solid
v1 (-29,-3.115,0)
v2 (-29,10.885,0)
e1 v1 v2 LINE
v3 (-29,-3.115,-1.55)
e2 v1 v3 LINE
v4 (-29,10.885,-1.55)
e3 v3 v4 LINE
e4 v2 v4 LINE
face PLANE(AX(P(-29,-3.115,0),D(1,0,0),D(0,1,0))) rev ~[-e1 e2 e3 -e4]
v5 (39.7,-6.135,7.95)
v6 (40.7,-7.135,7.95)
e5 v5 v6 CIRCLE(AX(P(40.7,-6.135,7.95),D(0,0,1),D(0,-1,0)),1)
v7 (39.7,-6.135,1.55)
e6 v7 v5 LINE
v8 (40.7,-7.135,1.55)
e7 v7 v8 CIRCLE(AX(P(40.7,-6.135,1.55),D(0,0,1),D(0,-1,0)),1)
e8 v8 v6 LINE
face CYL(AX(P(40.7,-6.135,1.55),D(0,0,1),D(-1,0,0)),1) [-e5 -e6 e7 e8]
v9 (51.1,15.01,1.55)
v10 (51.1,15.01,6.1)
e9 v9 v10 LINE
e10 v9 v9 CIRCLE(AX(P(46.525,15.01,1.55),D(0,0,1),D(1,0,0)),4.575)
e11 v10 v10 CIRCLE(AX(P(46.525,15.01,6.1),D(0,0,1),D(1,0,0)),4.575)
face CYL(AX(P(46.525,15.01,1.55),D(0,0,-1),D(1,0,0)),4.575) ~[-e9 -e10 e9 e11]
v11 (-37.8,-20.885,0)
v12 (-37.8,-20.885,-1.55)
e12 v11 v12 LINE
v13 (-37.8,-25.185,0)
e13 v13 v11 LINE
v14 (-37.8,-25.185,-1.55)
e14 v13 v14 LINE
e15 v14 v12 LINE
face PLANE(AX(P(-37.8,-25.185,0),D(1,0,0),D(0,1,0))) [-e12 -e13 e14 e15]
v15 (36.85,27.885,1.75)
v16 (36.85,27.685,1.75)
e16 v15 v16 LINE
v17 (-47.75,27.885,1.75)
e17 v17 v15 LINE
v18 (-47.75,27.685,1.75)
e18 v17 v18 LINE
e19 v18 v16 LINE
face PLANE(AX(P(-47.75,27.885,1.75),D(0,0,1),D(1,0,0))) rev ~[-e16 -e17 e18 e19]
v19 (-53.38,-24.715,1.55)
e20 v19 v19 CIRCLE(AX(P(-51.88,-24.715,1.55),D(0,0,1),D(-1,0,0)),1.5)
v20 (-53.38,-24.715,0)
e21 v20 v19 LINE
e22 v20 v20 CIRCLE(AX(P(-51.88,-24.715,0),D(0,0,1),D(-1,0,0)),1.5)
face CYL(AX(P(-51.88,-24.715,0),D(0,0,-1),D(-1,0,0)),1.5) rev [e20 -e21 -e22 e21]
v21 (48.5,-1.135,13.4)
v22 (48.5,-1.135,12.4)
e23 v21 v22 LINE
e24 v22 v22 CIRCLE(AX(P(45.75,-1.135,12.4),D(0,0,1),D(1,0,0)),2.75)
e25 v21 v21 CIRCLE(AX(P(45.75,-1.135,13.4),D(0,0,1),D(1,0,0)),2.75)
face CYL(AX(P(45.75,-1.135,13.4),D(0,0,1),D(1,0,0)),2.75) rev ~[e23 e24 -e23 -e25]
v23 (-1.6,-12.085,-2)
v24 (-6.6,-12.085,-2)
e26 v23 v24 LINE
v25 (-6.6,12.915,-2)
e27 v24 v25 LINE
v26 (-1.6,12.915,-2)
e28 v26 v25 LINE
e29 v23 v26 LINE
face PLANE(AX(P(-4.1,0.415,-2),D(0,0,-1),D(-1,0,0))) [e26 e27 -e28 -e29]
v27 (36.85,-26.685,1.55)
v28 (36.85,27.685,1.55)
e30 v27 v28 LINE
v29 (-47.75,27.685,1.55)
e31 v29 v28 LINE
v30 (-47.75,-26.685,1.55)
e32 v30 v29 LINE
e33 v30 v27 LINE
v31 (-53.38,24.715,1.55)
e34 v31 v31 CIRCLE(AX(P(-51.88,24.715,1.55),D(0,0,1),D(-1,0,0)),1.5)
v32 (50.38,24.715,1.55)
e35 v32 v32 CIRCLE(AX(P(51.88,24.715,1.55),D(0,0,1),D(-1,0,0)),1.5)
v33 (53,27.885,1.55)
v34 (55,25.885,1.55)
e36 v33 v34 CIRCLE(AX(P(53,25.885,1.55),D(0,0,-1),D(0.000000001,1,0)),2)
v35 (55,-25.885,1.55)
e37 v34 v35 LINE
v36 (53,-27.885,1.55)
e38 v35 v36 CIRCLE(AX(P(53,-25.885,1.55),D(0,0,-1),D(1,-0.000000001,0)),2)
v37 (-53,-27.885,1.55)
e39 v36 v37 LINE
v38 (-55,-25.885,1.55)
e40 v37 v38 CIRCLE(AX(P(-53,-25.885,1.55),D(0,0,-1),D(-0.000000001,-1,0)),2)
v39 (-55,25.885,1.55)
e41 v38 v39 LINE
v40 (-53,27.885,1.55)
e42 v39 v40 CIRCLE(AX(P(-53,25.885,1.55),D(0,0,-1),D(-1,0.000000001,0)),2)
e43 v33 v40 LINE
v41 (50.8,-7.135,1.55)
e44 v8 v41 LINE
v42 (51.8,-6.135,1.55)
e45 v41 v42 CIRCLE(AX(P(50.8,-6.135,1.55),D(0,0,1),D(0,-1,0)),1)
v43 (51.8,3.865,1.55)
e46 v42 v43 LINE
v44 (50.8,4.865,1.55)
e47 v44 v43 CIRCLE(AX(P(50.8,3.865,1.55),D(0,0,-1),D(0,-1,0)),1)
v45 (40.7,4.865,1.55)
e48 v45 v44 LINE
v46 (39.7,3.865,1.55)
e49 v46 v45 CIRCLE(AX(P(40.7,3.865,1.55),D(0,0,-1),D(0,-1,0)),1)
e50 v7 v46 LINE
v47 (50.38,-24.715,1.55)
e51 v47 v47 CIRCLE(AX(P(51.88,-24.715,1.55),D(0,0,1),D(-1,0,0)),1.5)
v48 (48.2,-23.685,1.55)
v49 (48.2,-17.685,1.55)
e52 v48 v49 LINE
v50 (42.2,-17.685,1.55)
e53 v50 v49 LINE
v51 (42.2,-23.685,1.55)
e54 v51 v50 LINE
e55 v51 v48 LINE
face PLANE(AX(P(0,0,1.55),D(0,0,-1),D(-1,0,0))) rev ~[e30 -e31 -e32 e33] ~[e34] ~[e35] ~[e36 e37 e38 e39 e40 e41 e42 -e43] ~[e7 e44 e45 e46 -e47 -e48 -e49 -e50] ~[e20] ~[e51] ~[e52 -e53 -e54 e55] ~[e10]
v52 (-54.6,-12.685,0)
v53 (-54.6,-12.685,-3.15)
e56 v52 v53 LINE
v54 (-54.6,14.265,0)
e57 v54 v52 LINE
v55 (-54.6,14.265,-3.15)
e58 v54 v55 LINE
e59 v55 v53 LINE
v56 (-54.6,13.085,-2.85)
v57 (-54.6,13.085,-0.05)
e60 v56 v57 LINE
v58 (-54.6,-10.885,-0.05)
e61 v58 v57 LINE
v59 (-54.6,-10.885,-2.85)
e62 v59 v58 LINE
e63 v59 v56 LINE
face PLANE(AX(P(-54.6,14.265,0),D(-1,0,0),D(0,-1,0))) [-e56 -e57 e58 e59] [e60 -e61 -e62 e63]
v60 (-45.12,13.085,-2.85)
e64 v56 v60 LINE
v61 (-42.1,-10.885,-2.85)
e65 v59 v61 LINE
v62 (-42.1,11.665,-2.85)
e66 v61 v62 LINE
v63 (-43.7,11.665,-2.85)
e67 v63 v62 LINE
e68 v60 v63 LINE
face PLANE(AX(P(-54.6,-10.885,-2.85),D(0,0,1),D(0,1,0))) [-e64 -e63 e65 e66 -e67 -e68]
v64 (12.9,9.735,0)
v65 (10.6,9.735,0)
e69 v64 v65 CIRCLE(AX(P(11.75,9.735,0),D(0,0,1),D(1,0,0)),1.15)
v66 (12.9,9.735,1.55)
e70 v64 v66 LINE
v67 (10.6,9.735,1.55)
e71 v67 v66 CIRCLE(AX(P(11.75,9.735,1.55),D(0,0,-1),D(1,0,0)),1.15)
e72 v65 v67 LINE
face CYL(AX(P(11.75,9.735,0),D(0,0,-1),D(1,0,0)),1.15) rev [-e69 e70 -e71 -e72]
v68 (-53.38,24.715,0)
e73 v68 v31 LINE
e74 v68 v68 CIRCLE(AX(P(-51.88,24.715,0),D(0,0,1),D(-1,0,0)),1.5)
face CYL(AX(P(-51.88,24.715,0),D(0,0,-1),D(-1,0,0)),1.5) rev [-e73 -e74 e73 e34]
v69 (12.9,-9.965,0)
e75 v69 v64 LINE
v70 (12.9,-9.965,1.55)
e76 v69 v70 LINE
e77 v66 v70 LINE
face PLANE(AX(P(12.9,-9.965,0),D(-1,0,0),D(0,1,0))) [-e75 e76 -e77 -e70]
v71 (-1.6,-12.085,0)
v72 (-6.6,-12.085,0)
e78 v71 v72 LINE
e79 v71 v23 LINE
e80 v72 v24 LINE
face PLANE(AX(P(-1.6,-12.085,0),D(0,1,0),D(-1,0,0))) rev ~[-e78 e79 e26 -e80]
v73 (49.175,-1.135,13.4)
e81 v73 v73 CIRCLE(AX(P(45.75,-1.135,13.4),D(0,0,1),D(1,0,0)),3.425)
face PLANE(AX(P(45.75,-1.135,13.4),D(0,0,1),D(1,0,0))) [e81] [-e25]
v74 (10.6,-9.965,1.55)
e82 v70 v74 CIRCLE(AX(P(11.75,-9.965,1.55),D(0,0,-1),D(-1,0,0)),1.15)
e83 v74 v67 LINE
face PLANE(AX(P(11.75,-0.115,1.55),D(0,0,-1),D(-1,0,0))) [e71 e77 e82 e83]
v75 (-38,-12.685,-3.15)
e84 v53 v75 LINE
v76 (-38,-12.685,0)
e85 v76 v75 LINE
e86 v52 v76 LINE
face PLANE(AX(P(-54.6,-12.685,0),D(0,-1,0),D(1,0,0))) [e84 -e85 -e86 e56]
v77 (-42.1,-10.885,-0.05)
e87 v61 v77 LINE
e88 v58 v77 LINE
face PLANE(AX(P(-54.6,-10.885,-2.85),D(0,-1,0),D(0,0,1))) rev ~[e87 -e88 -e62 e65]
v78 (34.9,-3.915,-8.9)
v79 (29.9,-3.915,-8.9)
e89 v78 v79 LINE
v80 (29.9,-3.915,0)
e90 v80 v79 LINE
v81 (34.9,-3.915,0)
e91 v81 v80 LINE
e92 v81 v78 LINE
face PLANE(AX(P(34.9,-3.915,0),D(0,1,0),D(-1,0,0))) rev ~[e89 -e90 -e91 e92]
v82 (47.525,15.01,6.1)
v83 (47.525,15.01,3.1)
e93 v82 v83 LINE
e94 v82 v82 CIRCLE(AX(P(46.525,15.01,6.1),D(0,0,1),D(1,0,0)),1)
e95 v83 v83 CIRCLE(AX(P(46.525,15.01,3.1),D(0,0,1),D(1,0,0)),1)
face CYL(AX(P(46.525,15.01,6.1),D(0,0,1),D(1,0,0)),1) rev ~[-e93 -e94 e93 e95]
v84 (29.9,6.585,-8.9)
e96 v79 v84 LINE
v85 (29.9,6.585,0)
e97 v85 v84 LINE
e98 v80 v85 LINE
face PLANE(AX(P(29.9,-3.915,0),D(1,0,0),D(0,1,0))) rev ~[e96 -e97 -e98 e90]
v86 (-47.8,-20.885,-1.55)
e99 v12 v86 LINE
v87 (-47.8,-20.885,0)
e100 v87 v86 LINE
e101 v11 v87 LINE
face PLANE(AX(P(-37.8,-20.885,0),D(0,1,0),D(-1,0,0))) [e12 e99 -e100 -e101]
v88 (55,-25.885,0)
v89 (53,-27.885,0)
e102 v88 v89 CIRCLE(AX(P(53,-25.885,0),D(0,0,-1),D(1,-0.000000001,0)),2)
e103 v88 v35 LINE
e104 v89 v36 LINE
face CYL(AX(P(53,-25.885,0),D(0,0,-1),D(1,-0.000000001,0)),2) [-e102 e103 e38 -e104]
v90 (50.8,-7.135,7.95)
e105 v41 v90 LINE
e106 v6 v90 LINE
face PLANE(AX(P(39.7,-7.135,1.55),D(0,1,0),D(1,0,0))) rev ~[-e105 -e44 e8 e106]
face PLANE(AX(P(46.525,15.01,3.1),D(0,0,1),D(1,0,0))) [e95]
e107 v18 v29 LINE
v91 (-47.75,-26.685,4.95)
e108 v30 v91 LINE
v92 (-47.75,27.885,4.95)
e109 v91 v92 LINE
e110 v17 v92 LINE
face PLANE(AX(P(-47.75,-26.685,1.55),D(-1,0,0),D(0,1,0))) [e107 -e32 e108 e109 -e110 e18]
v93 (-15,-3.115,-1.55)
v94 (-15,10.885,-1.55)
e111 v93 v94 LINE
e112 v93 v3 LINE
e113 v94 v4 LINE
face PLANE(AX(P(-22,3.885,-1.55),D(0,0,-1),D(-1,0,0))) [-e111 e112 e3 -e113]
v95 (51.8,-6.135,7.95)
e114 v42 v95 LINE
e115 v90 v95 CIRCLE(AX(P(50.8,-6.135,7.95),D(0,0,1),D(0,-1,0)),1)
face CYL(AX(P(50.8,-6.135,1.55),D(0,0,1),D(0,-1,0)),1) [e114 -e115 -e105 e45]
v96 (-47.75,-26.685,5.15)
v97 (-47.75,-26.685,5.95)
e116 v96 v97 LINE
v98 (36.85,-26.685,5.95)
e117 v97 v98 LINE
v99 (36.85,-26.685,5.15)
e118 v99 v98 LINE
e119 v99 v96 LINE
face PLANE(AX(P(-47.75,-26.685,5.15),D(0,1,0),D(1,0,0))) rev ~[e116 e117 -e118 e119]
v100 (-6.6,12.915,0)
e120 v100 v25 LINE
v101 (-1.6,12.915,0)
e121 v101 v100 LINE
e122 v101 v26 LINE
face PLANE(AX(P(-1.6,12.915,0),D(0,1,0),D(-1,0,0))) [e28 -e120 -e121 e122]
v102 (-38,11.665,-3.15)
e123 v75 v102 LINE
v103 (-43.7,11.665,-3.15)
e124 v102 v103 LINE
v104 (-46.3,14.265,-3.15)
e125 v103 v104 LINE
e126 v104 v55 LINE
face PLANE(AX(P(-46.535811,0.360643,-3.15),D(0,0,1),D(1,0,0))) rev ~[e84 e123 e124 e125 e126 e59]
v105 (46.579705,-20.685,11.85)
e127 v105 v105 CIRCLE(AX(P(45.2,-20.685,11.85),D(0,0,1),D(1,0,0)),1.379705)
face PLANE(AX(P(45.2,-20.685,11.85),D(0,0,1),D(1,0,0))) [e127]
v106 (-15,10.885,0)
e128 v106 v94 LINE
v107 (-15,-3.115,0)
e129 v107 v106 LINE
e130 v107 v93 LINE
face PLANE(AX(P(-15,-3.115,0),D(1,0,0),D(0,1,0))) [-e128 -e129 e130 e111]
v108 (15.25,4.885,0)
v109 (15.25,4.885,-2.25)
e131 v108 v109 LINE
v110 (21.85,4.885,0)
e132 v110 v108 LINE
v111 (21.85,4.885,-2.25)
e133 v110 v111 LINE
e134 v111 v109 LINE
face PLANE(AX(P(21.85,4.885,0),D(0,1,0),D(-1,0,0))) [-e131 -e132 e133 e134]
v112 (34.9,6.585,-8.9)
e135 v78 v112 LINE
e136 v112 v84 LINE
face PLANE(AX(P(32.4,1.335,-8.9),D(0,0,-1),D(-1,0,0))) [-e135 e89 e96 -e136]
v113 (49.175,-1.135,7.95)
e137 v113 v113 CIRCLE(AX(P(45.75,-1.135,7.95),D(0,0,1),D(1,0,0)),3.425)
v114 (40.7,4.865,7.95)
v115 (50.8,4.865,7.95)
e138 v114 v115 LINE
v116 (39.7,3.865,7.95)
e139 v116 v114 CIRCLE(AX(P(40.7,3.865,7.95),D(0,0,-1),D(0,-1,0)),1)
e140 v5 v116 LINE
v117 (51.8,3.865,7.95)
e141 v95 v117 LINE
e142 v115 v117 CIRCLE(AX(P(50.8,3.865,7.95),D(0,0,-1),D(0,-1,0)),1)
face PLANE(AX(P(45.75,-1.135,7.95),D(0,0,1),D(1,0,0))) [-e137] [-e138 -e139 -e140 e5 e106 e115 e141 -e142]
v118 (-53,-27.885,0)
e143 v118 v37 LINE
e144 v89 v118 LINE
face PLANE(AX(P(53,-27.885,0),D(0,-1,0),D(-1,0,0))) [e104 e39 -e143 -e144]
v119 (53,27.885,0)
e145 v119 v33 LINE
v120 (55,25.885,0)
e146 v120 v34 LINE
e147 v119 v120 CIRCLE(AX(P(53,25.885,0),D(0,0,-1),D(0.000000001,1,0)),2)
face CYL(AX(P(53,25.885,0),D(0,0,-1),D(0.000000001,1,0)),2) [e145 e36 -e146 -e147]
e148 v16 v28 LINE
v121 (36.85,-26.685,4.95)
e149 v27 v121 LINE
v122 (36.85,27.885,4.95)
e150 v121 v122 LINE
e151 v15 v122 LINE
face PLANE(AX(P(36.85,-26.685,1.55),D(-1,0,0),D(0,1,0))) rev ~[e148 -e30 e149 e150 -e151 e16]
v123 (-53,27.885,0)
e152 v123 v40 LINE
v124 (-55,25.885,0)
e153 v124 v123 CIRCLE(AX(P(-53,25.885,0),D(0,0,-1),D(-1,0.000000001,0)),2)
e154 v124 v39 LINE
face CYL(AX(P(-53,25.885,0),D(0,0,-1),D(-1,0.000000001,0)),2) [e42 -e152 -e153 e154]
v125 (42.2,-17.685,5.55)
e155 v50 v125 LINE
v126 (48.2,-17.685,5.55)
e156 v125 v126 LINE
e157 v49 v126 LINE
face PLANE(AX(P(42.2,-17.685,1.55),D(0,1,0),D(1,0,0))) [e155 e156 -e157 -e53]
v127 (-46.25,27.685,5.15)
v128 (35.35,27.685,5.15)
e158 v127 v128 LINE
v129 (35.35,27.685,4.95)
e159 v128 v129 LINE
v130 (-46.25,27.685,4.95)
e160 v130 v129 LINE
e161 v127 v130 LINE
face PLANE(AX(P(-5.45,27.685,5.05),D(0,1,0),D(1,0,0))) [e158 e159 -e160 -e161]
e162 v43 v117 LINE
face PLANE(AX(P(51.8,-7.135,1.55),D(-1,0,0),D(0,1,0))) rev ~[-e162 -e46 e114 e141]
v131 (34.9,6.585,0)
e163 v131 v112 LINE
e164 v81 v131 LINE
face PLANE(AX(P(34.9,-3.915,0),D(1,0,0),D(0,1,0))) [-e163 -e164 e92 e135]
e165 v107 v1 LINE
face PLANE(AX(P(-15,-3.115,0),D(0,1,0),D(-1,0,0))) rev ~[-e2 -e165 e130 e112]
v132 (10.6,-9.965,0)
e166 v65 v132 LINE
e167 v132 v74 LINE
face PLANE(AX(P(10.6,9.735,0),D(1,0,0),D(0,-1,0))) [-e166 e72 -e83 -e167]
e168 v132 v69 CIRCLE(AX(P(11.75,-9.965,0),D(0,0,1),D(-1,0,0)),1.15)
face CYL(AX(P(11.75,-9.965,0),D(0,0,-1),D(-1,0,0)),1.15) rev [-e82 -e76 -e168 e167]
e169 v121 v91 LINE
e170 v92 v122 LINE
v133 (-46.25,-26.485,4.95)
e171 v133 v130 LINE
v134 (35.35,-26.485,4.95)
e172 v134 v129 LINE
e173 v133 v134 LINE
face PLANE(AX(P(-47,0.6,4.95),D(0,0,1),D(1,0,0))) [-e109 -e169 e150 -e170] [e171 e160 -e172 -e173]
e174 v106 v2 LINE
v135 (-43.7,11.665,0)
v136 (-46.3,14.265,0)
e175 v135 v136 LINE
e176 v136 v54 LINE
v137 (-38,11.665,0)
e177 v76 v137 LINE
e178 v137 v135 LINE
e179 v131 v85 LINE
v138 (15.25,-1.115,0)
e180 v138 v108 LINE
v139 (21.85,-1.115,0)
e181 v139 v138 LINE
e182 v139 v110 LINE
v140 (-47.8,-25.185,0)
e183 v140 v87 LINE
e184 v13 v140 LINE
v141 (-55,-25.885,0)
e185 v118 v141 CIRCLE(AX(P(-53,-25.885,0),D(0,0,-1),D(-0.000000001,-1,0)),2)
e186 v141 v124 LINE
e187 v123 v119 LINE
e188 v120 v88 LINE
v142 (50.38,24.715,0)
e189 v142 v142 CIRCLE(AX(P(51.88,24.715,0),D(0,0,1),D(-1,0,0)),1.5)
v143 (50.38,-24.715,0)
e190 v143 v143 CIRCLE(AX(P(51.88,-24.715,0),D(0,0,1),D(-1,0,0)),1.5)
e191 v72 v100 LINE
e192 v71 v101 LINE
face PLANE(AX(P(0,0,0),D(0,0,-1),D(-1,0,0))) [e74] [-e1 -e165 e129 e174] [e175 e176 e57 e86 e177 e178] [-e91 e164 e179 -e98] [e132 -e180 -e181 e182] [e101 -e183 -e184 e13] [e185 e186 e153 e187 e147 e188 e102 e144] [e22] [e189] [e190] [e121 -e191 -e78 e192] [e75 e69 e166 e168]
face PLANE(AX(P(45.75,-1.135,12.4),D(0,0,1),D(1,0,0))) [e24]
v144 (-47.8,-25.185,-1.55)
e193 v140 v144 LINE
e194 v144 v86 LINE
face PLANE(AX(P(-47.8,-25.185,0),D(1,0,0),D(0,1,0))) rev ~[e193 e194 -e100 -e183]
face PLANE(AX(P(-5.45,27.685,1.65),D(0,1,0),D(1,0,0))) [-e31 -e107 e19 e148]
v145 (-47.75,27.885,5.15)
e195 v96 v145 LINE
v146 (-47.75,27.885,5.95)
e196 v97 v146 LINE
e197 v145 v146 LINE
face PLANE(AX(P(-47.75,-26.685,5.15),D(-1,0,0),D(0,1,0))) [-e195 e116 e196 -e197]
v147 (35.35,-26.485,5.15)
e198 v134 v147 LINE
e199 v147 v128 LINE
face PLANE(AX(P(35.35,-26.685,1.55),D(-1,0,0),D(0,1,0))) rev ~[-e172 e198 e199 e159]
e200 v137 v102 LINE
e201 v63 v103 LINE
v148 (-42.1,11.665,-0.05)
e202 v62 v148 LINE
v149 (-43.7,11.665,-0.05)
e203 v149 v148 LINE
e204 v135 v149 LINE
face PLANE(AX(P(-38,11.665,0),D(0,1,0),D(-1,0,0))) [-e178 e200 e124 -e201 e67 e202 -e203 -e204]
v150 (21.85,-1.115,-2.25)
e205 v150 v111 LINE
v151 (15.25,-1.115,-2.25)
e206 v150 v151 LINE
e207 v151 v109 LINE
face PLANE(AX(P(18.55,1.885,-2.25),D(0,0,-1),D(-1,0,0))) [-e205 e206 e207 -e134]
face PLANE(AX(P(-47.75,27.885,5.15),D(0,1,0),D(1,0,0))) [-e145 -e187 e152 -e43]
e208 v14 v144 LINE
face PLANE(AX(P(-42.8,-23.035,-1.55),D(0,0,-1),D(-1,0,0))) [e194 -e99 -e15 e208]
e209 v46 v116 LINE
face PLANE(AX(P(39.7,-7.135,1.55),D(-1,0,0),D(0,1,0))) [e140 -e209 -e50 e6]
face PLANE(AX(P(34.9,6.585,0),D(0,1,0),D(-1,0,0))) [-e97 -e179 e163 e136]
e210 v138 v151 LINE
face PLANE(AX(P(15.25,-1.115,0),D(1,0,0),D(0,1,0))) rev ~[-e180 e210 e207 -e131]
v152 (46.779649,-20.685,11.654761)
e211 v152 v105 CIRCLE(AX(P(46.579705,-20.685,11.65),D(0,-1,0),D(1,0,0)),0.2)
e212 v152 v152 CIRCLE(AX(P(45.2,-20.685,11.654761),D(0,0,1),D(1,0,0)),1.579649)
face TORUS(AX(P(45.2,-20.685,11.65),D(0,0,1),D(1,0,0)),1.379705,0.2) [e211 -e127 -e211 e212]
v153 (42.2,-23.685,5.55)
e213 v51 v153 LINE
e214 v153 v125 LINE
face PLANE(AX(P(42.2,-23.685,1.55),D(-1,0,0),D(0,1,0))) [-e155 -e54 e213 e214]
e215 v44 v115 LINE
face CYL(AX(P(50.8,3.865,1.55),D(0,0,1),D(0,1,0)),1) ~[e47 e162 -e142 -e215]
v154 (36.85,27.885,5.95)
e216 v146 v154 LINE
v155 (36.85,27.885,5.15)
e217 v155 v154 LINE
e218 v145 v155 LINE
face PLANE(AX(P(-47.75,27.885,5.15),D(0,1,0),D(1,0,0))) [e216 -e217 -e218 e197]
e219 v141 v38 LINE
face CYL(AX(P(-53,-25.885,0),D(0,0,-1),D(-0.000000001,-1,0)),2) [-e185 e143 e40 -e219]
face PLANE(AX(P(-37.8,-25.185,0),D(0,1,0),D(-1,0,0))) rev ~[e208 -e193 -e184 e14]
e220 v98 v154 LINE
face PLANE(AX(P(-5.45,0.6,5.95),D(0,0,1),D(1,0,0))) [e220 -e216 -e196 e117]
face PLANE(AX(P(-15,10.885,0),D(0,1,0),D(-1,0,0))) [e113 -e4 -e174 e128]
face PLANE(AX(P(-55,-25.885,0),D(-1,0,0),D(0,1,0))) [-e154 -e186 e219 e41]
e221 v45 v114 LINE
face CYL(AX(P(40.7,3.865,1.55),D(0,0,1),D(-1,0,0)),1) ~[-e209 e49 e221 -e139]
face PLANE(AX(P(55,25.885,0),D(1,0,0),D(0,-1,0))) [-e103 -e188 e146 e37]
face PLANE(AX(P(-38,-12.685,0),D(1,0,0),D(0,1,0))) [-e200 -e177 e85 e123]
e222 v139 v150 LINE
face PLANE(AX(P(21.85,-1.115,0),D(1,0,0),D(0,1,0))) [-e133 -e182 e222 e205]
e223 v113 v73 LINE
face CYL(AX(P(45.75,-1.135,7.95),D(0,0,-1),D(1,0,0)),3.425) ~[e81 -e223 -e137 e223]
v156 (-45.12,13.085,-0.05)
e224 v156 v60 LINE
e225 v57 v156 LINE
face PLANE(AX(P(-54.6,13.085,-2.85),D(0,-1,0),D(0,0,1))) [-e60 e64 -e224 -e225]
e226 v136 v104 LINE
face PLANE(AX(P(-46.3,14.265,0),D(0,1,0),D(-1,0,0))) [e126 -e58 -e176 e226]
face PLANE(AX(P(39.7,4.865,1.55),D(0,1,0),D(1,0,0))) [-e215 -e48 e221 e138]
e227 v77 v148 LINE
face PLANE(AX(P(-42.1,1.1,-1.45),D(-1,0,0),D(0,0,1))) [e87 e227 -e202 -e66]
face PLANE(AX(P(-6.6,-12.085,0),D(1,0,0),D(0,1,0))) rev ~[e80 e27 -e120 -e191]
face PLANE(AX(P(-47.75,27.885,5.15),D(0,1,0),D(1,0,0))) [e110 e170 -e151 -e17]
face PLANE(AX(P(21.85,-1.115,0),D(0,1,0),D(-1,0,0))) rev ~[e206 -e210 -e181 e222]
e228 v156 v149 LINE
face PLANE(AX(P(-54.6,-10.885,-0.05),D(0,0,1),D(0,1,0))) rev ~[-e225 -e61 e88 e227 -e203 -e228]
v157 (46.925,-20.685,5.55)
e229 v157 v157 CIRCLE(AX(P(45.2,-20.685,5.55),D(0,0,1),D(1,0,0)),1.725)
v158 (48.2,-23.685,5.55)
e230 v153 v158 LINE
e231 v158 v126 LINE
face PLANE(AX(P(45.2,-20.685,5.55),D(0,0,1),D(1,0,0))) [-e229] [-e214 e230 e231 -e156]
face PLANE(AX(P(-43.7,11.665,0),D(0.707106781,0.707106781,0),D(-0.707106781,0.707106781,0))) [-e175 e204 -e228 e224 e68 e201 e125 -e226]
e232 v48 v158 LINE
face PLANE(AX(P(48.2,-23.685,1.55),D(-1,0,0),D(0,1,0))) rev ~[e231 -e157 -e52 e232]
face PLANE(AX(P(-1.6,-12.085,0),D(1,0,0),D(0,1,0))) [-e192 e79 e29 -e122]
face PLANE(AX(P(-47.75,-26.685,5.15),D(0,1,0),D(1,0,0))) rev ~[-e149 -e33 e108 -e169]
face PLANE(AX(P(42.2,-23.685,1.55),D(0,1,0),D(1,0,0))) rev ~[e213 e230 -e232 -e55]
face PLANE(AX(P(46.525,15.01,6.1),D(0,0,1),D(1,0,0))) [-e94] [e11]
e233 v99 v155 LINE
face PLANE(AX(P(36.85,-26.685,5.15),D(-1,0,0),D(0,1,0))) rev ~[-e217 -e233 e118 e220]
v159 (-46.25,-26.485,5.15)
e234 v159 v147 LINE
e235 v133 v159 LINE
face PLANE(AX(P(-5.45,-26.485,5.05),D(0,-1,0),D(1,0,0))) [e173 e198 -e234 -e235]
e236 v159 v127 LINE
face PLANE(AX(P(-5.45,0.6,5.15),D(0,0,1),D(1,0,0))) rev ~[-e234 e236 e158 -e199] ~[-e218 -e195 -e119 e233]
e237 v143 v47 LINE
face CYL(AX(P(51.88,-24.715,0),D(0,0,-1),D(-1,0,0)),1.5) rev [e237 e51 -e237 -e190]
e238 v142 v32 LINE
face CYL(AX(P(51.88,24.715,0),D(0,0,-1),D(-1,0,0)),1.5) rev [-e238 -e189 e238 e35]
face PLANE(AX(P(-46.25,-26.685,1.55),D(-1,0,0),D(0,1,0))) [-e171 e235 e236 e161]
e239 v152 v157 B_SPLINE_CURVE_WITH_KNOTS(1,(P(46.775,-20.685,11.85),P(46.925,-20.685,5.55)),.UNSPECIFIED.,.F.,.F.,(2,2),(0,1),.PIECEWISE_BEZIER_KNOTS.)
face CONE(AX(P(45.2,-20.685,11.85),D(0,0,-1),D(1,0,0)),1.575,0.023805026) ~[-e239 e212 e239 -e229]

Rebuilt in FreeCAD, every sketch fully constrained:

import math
import FreeCAD as App
import Part
import Sketcher

V = App.Vector
Q = App.Units.Quantity


def edges_at(feature, points):
    """Names of the edges that pass closest to the given points."""
    edges = feature.Shape.Edges
    near = lambda p: min(range(len(edges)), key=lambda i: edges[i].distToShape(Part.Vertex(*p))[0])
    return sorted({f"Edge{near(p) + 1}" for p in points})


def add_polygon(sketch, points):
    """Adds a closed chain of lines whose ends are joined by coincident constraints."""
    first, n = sketch.GeometryCount, len(points)
    for a, b in zip(points, points[1:] + points[:1]):
        sketch.addGeometry(Part.LineSegment(App.Vector(*a, 0), App.Vector(*b, 0)), False)
    for i in range(n):
        sketch.addConstraint(Sketcher.Constraint("Coincident", first + i, 2, first + (i + 1) % n, 1))

doc = App.newDocument("Part")
body = doc.addObject("PartDesign::Body", "Body")

sketch1 = doc.addObject("Sketcher::SketchObject", "Sketch")
body.addObject(sketch1)
sketch1.AttachmentSupport = (doc.XY_Plane, [""])
sketch1.MapMode = "FlatFace"
sketch1.addGeometry(Part.LineSegment(V(53, 27.9, 0), V(-53, 27.9, 0)), False)
sketch1.addGeometry(Part.ArcOfCircle(Part.Circle(V(-53, 25.9, 0), V(0, 0, 1), 2), math.radians(90), math.radians(180)), False)
sketch1.addGeometry(Part.LineSegment(V(-55, 25.9, 0), V(-55, -25.9, 0)), False)
sketch1.addGeometry(Part.ArcOfCircle(Part.Circle(V(-53, -25.9, 0), V(0, 0, 1), 2), math.radians(-180), math.radians(-90)), False)
sketch1.addGeometry(Part.LineSegment(V(-53, -27.9, 0), V(53, -27.9, 0)), False)
sketch1.addGeometry(Part.ArcOfCircle(Part.Circle(V(53, -25.9, 0), V(0, 0, 1), 2), math.radians(-90), math.radians(0)), False)
sketch1.addGeometry(Part.LineSegment(V(55, -25.9, 0), V(55, 25.9, 0)), False)
sketch1.addGeometry(Part.ArcOfCircle(Part.Circle(V(53, 25.9, 0), V(0, 0, 1), 2), math.radians(0), math.radians(90)), False)
sketch1.addGeometry(Part.Circle(V(51.9, -24.7, 0), V(0, 0, 1), 1.5), False)
sketch1.addGeometry(Part.Circle(V(-51.9, -24.7, 0), V(0, 0, 1), 1.5), False)
sketch1.addGeometry(Part.Circle(V(51.9, 24.7, 0), V(0, 0, 1), 1.5), False)
sketch1.addGeometry(Part.Circle(V(-51.9, 24.7, 0), V(0, 0, 1), 1.5), False)
sketch1.addConstraint(Sketcher.Constraint("Tangent", 0, 2, 1, 1))
sketch1.addConstraint(Sketcher.Constraint("Tangent", 1, 2, 2, 1))
sketch1.addConstraint(Sketcher.Constraint("Tangent", 2, 2, 3, 1))
sketch1.addConstraint(Sketcher.Constraint("Tangent", 3, 2, 4, 1))
sketch1.addConstraint(Sketcher.Constraint("Tangent", 4, 2, 5, 1))
sketch1.addConstraint(Sketcher.Constraint("Tangent", 5, 2, 6, 1))
sketch1.addConstraint(Sketcher.Constraint("Tangent", 6, 2, 7, 1))
sketch1.addConstraint(Sketcher.Constraint("Tangent", 7, 2, 0, 1))
sketch1.addConstraint(Sketcher.Constraint("Horizontal", 0))
sketch1.addConstraint(Sketcher.Constraint("Vertical", 2))
sketch1.addConstraint(Sketcher.Constraint("Horizontal", 4))
sketch1.addConstraint(Sketcher.Constraint("Vertical", 6))
sketch1.addConstraint(Sketcher.Constraint("Equal", 1, 3))
sketch1.addConstraint(Sketcher.Constraint("Equal", 3, 5))
sketch1.addConstraint(Sketcher.Constraint("Equal", 5, 7))
sketch1.addConstraint(Sketcher.Constraint("Equal", 8, 9))
sketch1.addConstraint(Sketcher.Constraint("Equal", 9, 10))
sketch1.addConstraint(Sketcher.Constraint("Equal", 10, 11))
sketch1.addConstraint(Sketcher.Constraint("Symmetric", 1, 3, 5, 3, -1, 1))
sketch1.addConstraint(Sketcher.Constraint("Symmetric", 9, 3, 10, 3, -1, 1))
sketch1.addConstraint(Sketcher.Constraint("Symmetric", 8, 3, 11, 3, -1, 1))
sketch1.addConstraint(Sketcher.Constraint("Symmetric", 8, 3, 9, 3, -2))
sketch1.addConstraint(Sketcher.Constraint("Diameter", 8, Q("3 mm")))
sketch1.addConstraint(Sketcher.Constraint("Radius", 1, Q("2 mm")))
sketch1.addConstraint(Sketcher.Constraint("DistanceX", 0, 2, 0, 1, Q("106 mm")))
sketch1.addConstraint(Sketcher.Constraint("DistanceY", 2, 2, 2, 1, Q("51.77 mm")))
sketch1.addConstraint(Sketcher.Constraint("DistanceY", 8, 3, 7, 3, Q("50.6 mm")))
sketch1.addConstraint(Sketcher.Constraint("DistanceX", -1, 1, 8, 3, Q("51.88 mm")))
pad1 = doc.addObject("PartDesign::Pad", "Pad")
body.addObject(pad1)
pad1.Profile = sketch1
pad1.Length = 1.55

sketch2 = doc.addObject("Sketcher::SketchObject", "Sketch001")
body.addObject(sketch2)
sketch2.AttachmentSupport = (doc.XY_Plane, [""])
sketch2.MapMode = "FlatFace"
add_polygon(sketch2, [(-15, 11), (-15, -3), (-29, -3), (-29, 11)])
sketch2.addConstraint(Sketcher.Constraint("Vertical", 0))
sketch2.addConstraint(Sketcher.Constraint("Horizontal", 1))
sketch2.addConstraint(Sketcher.Constraint("Vertical", 2))
sketch2.addConstraint(Sketcher.Constraint("Horizontal", 3))
sketch2.addConstraint(Sketcher.Constraint("Equal", 3, 0))
sketch2.addConstraint(Sketcher.Constraint("DistanceX", 1, 2, 1, 1, Q("14 mm")))
sketch2.addConstraint(Sketcher.Constraint("DistanceX", 0, 2, -1, 1, Q("15 mm")))
sketch2.addConstraint(Sketcher.Constraint("DistanceY", 0, 2, -1, 1, Q("3.115 mm")))
pad2 = doc.addObject("PartDesign::Pad", "Pad001")
body.addObject(pad2)
pad2.Profile = sketch2
pad2.Length = 1.55
pad2.Reversed = True

sketch3 = doc.addObject("Sketcher::SketchObject", "Sketch002")
body.addObject(sketch3)
sketch3.AttachmentSupport = (doc.XY_Plane, [""])
sketch3.MapMode = "FlatFace"
sketch3.addGeometry(Part.LineSegment(V(10.6, -10, 0), V(10.6, 9.7, 0)), False)
sketch3.addGeometry(Part.ArcOfCircle(Part.Circle(V(11.8, 9.7, 0), V(0, 0, 1), 1.1), math.radians(0), math.radians(180)), False)
sketch3.addGeometry(Part.LineSegment(V(12.9, 9.7, 0), V(12.9, -10, 0)), False)
sketch3.addGeometry(Part.ArcOfCircle(Part.Circle(V(11.8, -10, 0), V(0, 0, 1), 1.1), math.radians(180), math.radians(360)), False)
sketch3.addConstraint(Sketcher.Constraint("Tangent", 0, 2, 1, 2))
sketch3.addConstraint(Sketcher.Constraint("Tangent", 1, 1, 2, 1))
sketch3.addConstraint(Sketcher.Constraint("Tangent", 2, 2, 3, 2))
sketch3.addConstraint(Sketcher.Constraint("Tangent", 3, 1, 0, 1))
sketch3.addConstraint(Sketcher.Constraint("Vertical", 0))
sketch3.addConstraint(Sketcher.Constraint("Vertical", 2))
sketch3.addConstraint(Sketcher.Constraint("Radius", 1, Q("1.15 mm")))
sketch3.addConstraint(Sketcher.Constraint("DistanceY", 0, 1, 0, 2, Q("19.7 mm")))
sketch3.addConstraint(Sketcher.Constraint("DistanceX", -1, 1, 0, 2, Q("10.6 mm")))
sketch3.addConstraint(Sketcher.Constraint("DistanceY", -1, 1, 1, 3, Q("9.735 mm")))
pocket1 = doc.addObject("PartDesign::Pocket", "Pocket")
body.addObject(pocket1)
pocket1.Profile = sketch3
pocket1.Type = "UpToFirst"
pocket1.Reversed = True

sketch4 = doc.addObject("Sketcher::SketchObject", "Sketch003")
body.addObject(sketch4)
sketch4.AttachmentSupport = (doc.XY_Plane, [""])
sketch4.MapMode = "FlatFace"
add_polygon(sketch4, [(-46.3, 14.3), (-43.7, 11.7), (-38, 11.7), (-38, -12.7), (-54.6, -12.7), (-54.6, 14.3)])
sketch4.addConstraint(Sketcher.Constraint("Horizontal", 1))
sketch4.addConstraint(Sketcher.Constraint("Vertical", 2))
sketch4.addConstraint(Sketcher.Constraint("Horizontal", 3))
sketch4.addConstraint(Sketcher.Constraint("Vertical", 4))
sketch4.addConstraint(Sketcher.Constraint("Horizontal", 5))
sketch4.addConstraint(Sketcher.Constraint("Angle", 0, Q("-45 deg")))
sketch4.addConstraint(Sketcher.Constraint("DistanceX", 1, 1, 1, 2, Q("5.7 mm")))
sketch4.addConstraint(Sketcher.Constraint("DistanceX", 3, 2, 3, 1, Q("16.6 mm")))
sketch4.addConstraint(Sketcher.Constraint("DistanceX", 5, 1, 5, 2, Q("8.3 mm")))
sketch4.addConstraint(Sketcher.Constraint("DistanceX", 1, 2, -1, 1, Q("38 mm")))
sketch4.addConstraint(Sketcher.Constraint("DistanceY", 2, 2, 2, 1, Q("24.35 mm")))
sketch4.addConstraint(Sketcher.Constraint("DistanceY", -1, 1, 0, 2, Q("11.665 mm")))
pad3 = doc.addObject("PartDesign::Pad", "Pad002")
body.addObject(pad3)
pad3.Profile = sketch4
pad3.Length = 3.15
pad3.Reversed = True

sketch5 = doc.addObject("Sketcher::SketchObject", "Sketch004")
body.addObject(sketch5)
sketch5.AttachmentSupport = (doc.XY_Plane, [""])
sketch5.MapMode = "FlatFace"
add_polygon(sketch5, [(-2, 13), (-2, -12), (-7, -12), (-7, 13)])
sketch5.addConstraint(Sketcher.Constraint("Vertical", 0))
sketch5.addConstraint(Sketcher.Constraint("Horizontal", 1))
sketch5.addConstraint(Sketcher.Constraint("Vertical", 2))
sketch5.addConstraint(Sketcher.Constraint("Horizontal", 3))
sketch5.addConstraint(Sketcher.Constraint("DistanceX", 1, 2, 1, 1, Q("5 mm")))
sketch5.addConstraint(Sketcher.Constraint("DistanceY", 0, 2, 0, 1, Q("25 mm")))
sketch5.addConstraint(Sketcher.Constraint("DistanceX", 0, 2, -1, 1, Q("1.6 mm")))
sketch5.addConstraint(Sketcher.Constraint("DistanceY", 0, 2, -1, 1, Q("12.085 mm")))
pad4 = doc.addObject("PartDesign::Pad", "Pad003")
body.addObject(pad4)
pad4.Profile = sketch5
pad4.Length = 2
pad4.Reversed = True

sketch6 = doc.addObject("Sketcher::SketchObject", "Sketch005")
body.addObject(sketch6)
sketch6.AttachmentSupport = (doc.XY_Plane, [""])
sketch6.MapMode = "FlatFace"
add_polygon(sketch6, [(35, 7), (35, -4), (30, -4), (30, 7)])
sketch6.addConstraint(Sketcher.Constraint("Vertical", 0))
sketch6.addConstraint(Sketcher.Constraint("Horizontal", 1))
sketch6.addConstraint(Sketcher.Constraint("Vertical", 2))
sketch6.addConstraint(Sketcher.Constraint("Horizontal", 3))
sketch6.addConstraint(Sketcher.Constraint("DistanceX", 1, 2, 1, 1, Q("5 mm")))
sketch6.addConstraint(Sketcher.Constraint("DistanceY", 0, 2, 0, 1, Q("10.5 mm")))
sketch6.addConstraint(Sketcher.Constraint("DistanceX", -1, 1, 0, 2, Q("34.9 mm")))
sketch6.addConstraint(Sketcher.Constraint("DistanceY", 0, 2, -1, 1, Q("3.915 mm")))
pad5 = doc.addObject("PartDesign::Pad", "Pad004")
body.addObject(pad5)
pad5.Profile = sketch6
pad5.Length = 8.9
pad5.Reversed = True

sketch7 = doc.addObject("Sketcher::SketchObject", "Sketch006")
body.addObject(sketch7)
sketch7.AttachmentSupport = (doc.XY_Plane, [""])
sketch7.MapMode = "FlatFace"
add_polygon(sketch7, [(22, 5), (22, -1), (15, -1), (15, 5)])
sketch7.addConstraint(Sketcher.Constraint("Vertical", 0))
sketch7.addConstraint(Sketcher.Constraint("Horizontal", 1))
sketch7.addConstraint(Sketcher.Constraint("Vertical", 2))
sketch7.addConstraint(Sketcher.Constraint("Horizontal", 3))
sketch7.addConstraint(Sketcher.Constraint("DistanceY", 0, 2, 0, 1, Q("6 mm")))
sketch7.addConstraint(Sketcher.Constraint("DistanceX", 1, 2, 1, 1, Q("6.6 mm")))
sketch7.addConstraint(Sketcher.Constraint("DistanceX", -1, 1, 0, 2, Q("21.85 mm")))
sketch7.addConstraint(Sketcher.Constraint("DistanceY", 0, 2, -1, 1, Q("1.115 mm")))
pad6 = doc.addObject("PartDesign::Pad", "Pad005")
body.addObject(pad6)
pad6.Profile = sketch7
pad6.Length = 2.25
pad6.Reversed = True

sketch8 = doc.addObject("Sketcher::SketchObject", "Sketch007")
body.addObject(sketch8)
sketch8.AttachmentSupport = (doc.XY_Plane, [""])
sketch8.MapMode = "FlatFace"
add_polygon(sketch8, [(-37.8, -20.9), (-37.8, -25.2), (-47.8, -25.2), (-47.8, -20.9)])
sketch8.addConstraint(Sketcher.Constraint("Vertical", 0))
sketch8.addConstraint(Sketcher.Constraint("Horizontal", 1))
sketch8.addConstraint(Sketcher.Constraint("Vertical", 2))
sketch8.addConstraint(Sketcher.Constraint("Horizontal", 3))
sketch8.addConstraint(Sketcher.Constraint("DistanceX", 1, 2, 1, 1, Q("10 mm")))
sketch8.addConstraint(Sketcher.Constraint("DistanceY", 0, 2, 0, 1, Q("4.3 mm")))
sketch8.addConstraint(Sketcher.Constraint("DistanceX", 0, 2, -1, 1, Q("37.8 mm")))
sketch8.addConstraint(Sketcher.Constraint("DistanceY", 0, 2, -1, 1, Q("25.185 mm")))
pad7 = doc.addObject("PartDesign::Pad", "Pad006")
body.addObject(pad7)
pad7.Profile = sketch8
pad7.Length = 1.55
pad7.Reversed = True

sketch9 = doc.addObject("Sketcher::SketchObject", "Sketch008")
body.addObject(sketch9)
sketch9.AttachmentSupport = (doc.XY_Plane, [""])
sketch9.MapMode = "FlatFace"
sketch9.AttachmentOffset = App.Placement(V(0, 0, 1.55), App.Rotation())
add_polygon(sketch9, [(-46, 28), (-46, -27), (35, -27), (35, 28)])
sketch9.addConstraint(Sketcher.Constraint("Vertical", 0))
sketch9.addConstraint(Sketcher.Constraint("Horizontal", 1))
sketch9.addConstraint(Sketcher.Constraint("Vertical", 2))
sketch9.addConstraint(Sketcher.Constraint("Horizontal", 3))
sketch9.addConstraint(Sketcher.Constraint("DistanceX", 1, 1, 1, 2, Q("81.6 mm")))
sketch9.addConstraint(Sketcher.Constraint("DistanceY", 0, 2, 0, 1, Q("54.57 mm")))
sketch9.addConstraint(Sketcher.Constraint("DistanceX", 0, 2, -1, 1, Q("46.25 mm")))
sketch9.addConstraint(Sketcher.Constraint("DistanceY", 0, 2, -1, 1, Q("26.685 mm")))
pad8 = doc.addObject("PartDesign::Pad", "Pad007")
body.addObject(pad8)
pad8.Profile = sketch9
pad8.Length = 3.6

sketch10 = doc.addObject("Sketcher::SketchObject", "Sketch009")
body.addObject(sketch10)
sketch10.AttachmentSupport = (doc.XY_Plane, [""])
sketch10.MapMode = "FlatFace"
sketch10.AttachmentOffset = App.Placement(V(0, 0, 1.55), App.Rotation())
add_polygon(sketch10, [(-47.8, 27.9), (-47.8, -26.7), (-46.2, -26.7), (-46.2, 27.9)])
add_polygon(sketch10, [(35.4, 27.9), (35.4, -26.7), (36.9, -26.7), (36.9, 27.9)])
sketch10.addConstraint(Sketcher.Constraint("Vertical", 0))
sketch10.addConstraint(Sketcher.Constraint("Horizontal", 1))
sketch10.addConstraint(Sketcher.Constraint("Vertical", 2))
sketch10.addConstraint(Sketcher.Constraint("Horizontal", 3))
sketch10.addConstraint(Sketcher.Constraint("Vertical", 4))
sketch10.addConstraint(Sketcher.Constraint("Horizontal", 5))
sketch10.addConstraint(Sketcher.Constraint("Vertical", 6))
sketch10.addConstraint(Sketcher.Constraint("Horizontal", 7))
sketch10.addConstraint(Sketcher.Constraint("Horizontal", 1, 2, 4, 2))
sketch10.addConstraint(Sketcher.Constraint("Horizontal", 3, 2, 6, 2))
sketch10.addConstraint(Sketcher.Constraint("Equal", 3, 5))
sketch10.addConstraint(Sketcher.Constraint("DistanceX", 1, 1, 1, 2, Q("1.5 mm")))
sketch10.addConstraint(Sketcher.Constraint("DistanceY", 0, 2, 0, 1, Q("54.57 mm")))
sketch10.addConstraint(Sketcher.Constraint("DistanceX", 1, 2, 4, 2, Q("81.6 mm")))
sketch10.addConstraint(Sketcher.Constraint("DistanceX", 0, 2, -1, 1, Q("47.75 mm")))
sketch10.addConstraint(Sketcher.Constraint("DistanceY", 0, 2, -1, 1, Q("26.685 mm")))
pad9 = doc.addObject("PartDesign::Pad", "Pad008")
body.addObject(pad9)
pad9.Profile = sketch10
pad9.Length = 3.4

sketch11 = doc.addObject("Sketcher::SketchObject", "Sketch010")
body.addObject(sketch11)
sketch11.AttachmentSupport = (doc.XY_Plane, [""])
sketch11.MapMode = "FlatFace"
sketch11.AttachmentOffset = App.Placement(V(0, 0, 5.15), App.Rotation())
add_polygon(sketch11, [(-48, 28), (-48, -27), (37, -27), (37, 28)])
sketch11.addConstraint(Sketcher.Constraint("Vertical", 0))
sketch11.addConstraint(Sketcher.Constraint("Horizontal", 1))
sketch11.addConstraint(Sketcher.Constraint("Vertical", 2))
sketch11.addConstraint(Sketcher.Constraint("Horizontal", 3))
sketch11.addConstraint(Sketcher.Constraint("DistanceX", 1, 1, 1, 2, Q("84.6 mm")))
sketch11.addConstraint(Sketcher.Constraint("DistanceY", 0, 2, 0, 1, Q("54.57 mm")))
sketch11.addConstraint(Sketcher.Constraint("DistanceX", 0, 2, -1, 1, Q("47.75 mm")))
sketch11.addConstraint(Sketcher.Constraint("DistanceY", 0, 2, -1, 1, Q("26.685 mm")))
pad10 = doc.addObject("PartDesign::Pad", "Pad009")
body.addObject(pad10)
pad10.Profile = sketch11
pad10.Length = 0.8

sketch12 = doc.addObject("Sketcher::SketchObject", "Sketch011")
body.addObject(sketch12)
sketch12.AttachmentSupport = (doc.XY_Plane, [""])
sketch12.MapMode = "FlatFace"
sketch12.AttachmentOffset = App.Placement(V(0, 0, 1.55), App.Rotation())
add_polygon(sketch12, [(42, -18), (42, -24), (48, -24), (48, -18)])
sketch12.addConstraint(Sketcher.Constraint("Vertical", 0))
sketch12.addConstraint(Sketcher.Constraint("Horizontal", 1))
sketch12.addConstraint(Sketcher.Constraint("Vertical", 2))
sketch12.addConstraint(Sketcher.Constraint("Horizontal", 3))
sketch12.addConstraint(Sketcher.Constraint("Equal", 3, 0))
sketch12.addConstraint(Sketcher.Constraint("DistanceX", 1, 1, 1, 2, Q("6 mm")))
sketch12.addConstraint(Sketcher.Constraint("DistanceX", -1, 1, 0, 2, Q("42.2 mm")))
sketch12.addConstraint(Sketcher.Constraint("DistanceY", 0, 2, -1, 1, Q("23.685 mm")))
pad11 = doc.addObject("PartDesign::Pad", "Pad010")
body.addObject(pad11)
pad11.Profile = sketch12
pad11.Length = 4

sketch13 = doc.addObject("Sketcher::SketchObject", "Sketch012")
body.addObject(sketch13)
sketch13.AttachmentSupport = (doc.XY_Plane, [""])
sketch13.MapMode = "FlatFace"
sketch13.AttachmentOffset = App.Placement(V(0, 0, 1.55), App.Rotation())
add_polygon(sketch13, [(40, 5), (40, -7), (52, -7), (52, 5)])
sketch13.addConstraint(Sketcher.Constraint("Vertical", 0))
sketch13.addConstraint(Sketcher.Constraint("Horizontal", 1))
sketch13.addConstraint(Sketcher.Constraint("Vertical", 2))
sketch13.addConstraint(Sketcher.Constraint("Horizontal", 3))
sketch13.addConstraint(Sketcher.Constraint("DistanceY", 0, 2, 0, 1, Q("12 mm")))
sketch13.addConstraint(Sketcher.Constraint("DistanceX", 1, 1, 1, 2, Q("12.1 mm")))
sketch13.addConstraint(Sketcher.Constraint("DistanceX", -1, 1, 0, 2, Q("39.7 mm")))
sketch13.addConstraint(Sketcher.Constraint("DistanceY", 0, 2, -1, 1, Q("7.135 mm")))
pad12 = doc.addObject("PartDesign::Pad", "Pad011")
body.addObject(pad12)
pad12.Profile = sketch13
pad12.Length = 6.4

sketch14 = doc.addObject("Sketcher::SketchObject", "Sketch013")
body.addObject(sketch14)
sketch14.AttachmentSupport = (doc.XY_Plane, [""])
sketch14.MapMode = "FlatFace"
sketch14.AttachmentOffset = App.Placement(V(0, 0, 1.55), App.Rotation())
sketch14.addGeometry(Part.Circle(V(46.5, 15, 0), V(0, 0, 1), 4.6), False)
sketch14.addConstraint(Sketcher.Constraint("Diameter", 0, Q("9.15 mm")))
sketch14.addConstraint(Sketcher.Constraint("DistanceY", -1, 1, 0, 3, Q("15.01 mm")))
sketch14.addConstraint(Sketcher.Constraint("DistanceX", -1, 1, 0, 3, Q("46.525 mm")))
pad13 = doc.addObject("PartDesign::Pad", "Pad012")
body.addObject(pad13)
pad13.Profile = sketch14
pad13.Length = 4.55

sketch15 = doc.addObject("Sketcher::SketchObject", "Sketch014")
body.addObject(sketch15)
sketch15.AttachmentSupport = (doc.XY_Plane, [""])
sketch15.MapMode = "FlatFace"
sketch15.AttachmentOffset = App.Placement(V(0, 0, 6.1), App.Rotation())
sketch15.addGeometry(Part.Circle(V(46.5, 15, 0), V(0, 0, 1), 1), False)
sketch15.addConstraint(Sketcher.Constraint("Diameter", 0, Q("2 mm")))
sketch15.addConstraint(Sketcher.Constraint("DistanceY", -1, 1, 0, 3, Q("15.01 mm")))
sketch15.addConstraint(Sketcher.Constraint("DistanceX", -1, 1, 0, 3, Q("46.525 mm")))
pocket2 = doc.addObject("PartDesign::Pocket", "Pocket001")
body.addObject(pocket2)
pocket2.Profile = sketch15
pocket2.Length = 3

sketch16 = doc.addObject("Sketcher::SketchObject", "Sketch015")
body.addObject(sketch16)
sketch16.AttachmentSupport = (doc.XY_Plane, [""])
sketch16.MapMode = "FlatFace"
sketch16.AttachmentOffset = App.Placement(V(0, 0, 7.95), App.Rotation())
sketch16.addGeometry(Part.Circle(V(45.8, -1.1, 0), V(0, 0, 1), 3.4), False)
sketch16.addConstraint(Sketcher.Constraint("Diameter", 0, Q("6.85 mm")))
sketch16.addConstraint(Sketcher.Constraint("DistanceX", -1, 1, 0, 3, Q("45.75 mm")))
sketch16.addConstraint(Sketcher.Constraint("DistanceY", 0, 3, -1, 1, Q("1.135 mm")))
pad14 = doc.addObject("PartDesign::Pad", "Pad013")
body.addObject(pad14)
pad14.Profile = sketch16
pad14.Length = 5.45

sketch17 = doc.addObject("Sketcher::SketchObject", "Sketch016")
body.addObject(sketch17)
sketch17.AttachmentSupport = (doc.XY_Plane, [""])
sketch17.MapMode = "FlatFace"
sketch17.AttachmentOffset = App.Placement(V(0, 0, 11.85), App.Rotation())
sketch17.addGeometry(Part.Circle(V(45.2, -20.7, 0), V(0, 0, 1), 1.6), False)
sketch17.addConstraint(Sketcher.Constraint("Diameter", 0, Q("3.15 mm")))
sketch17.addConstraint(Sketcher.Constraint("DistanceX", -1, 1, 0, 3, Q("45.2 mm")))
sketch17.addConstraint(Sketcher.Constraint("DistanceY", 0, 3, -1, 1, Q("20.685 mm")))

sketch18 = doc.addObject("Sketcher::SketchObject", "Sketch017")
body.addObject(sketch18)
sketch18.AttachmentSupport = (doc.XY_Plane, [""])
sketch18.MapMode = "FlatFace"
sketch18.AttachmentOffset = App.Placement(V(0, 0, 5.55), App.Rotation())
sketch18.addGeometry(Part.Circle(V(45.2, -20.7, 0), V(0, 0, 1), 1.7), False)
sketch18.addConstraint(Sketcher.Constraint("Diameter", 0, Q("3.45 mm")))
sketch18.addConstraint(Sketcher.Constraint("DistanceX", -1, 1, 0, 3, Q("45.2 mm")))
sketch18.addConstraint(Sketcher.Constraint("DistanceY", 0, 3, -1, 1, Q("20.685 mm")))

additiveloft = doc.addObject("PartDesign::AdditiveLoft", "AdditiveLoft")
body.addObject(additiveloft)
additiveloft.Profile = sketch17
additiveloft.Sections = [sketch18]
doc.recompute()

fillet = doc.addObject("PartDesign::Fillet", "Fillet")
body.addObject(fillet)
fillet.Base = (additiveloft, edges_at(additiveloft, [(43.625, -20.685, 11.85)]))
fillet.Radius = 0.2

sketch19 = doc.addObject("Sketcher::SketchObject", "Sketch018")
body.addObject(sketch19)
sketch19.AttachmentSupport = (doc.YZ_Plane, [""])
sketch19.MapMode = "FlatFace"
sketch19.AttachmentOffset = App.Placement(V(0, 0, -54.6), App.Rotation())
add_polygon(sketch19, [(13.1, -2.9), (-10.9, -2.9), (-10.9, -0.1), (13.1, -0.1)])
sketch19.addConstraint(Sketcher.Constraint("Horizontal", 0))
sketch19.addConstraint(Sketcher.Constraint("Vertical", 1))
sketch19.addConstraint(Sketcher.Constraint("Horizontal", 2))
sketch19.addConstraint(Sketcher.Constraint("Vertical", 3))
sketch19.addConstraint(Sketcher.Constraint("DistanceY", 1, 1, 1, 2, Q("2.8 mm")))
sketch19.addConstraint(Sketcher.Constraint("DistanceX", 0, 2, 0, 1, Q("23.97 mm")))
sketch19.addConstraint(Sketcher.Constraint("DistanceY", 0, 2, -1, 1, Q("2.85 mm")))
sketch19.addConstraint(Sketcher.Constraint("DistanceX", 0, 2, -1, 1, Q("10.885 mm")))
pocket3 = doc.addObject("PartDesign::Pocket", "Pocket002")
body.addObject(pocket3)
pocket3.Profile = sketch19
pocket3.Length = 12.5
pocket3.Reversed = True
doc.recompute()

fillet2 = doc.addObject("PartDesign::Fillet", "Fillet001")
body.addObject(fillet2)
fillet2.Base = (pocket3, edges_at(pocket3, [
    (51.8, -7.135, 4.75),
    (51.8, 4.865, 4.75),
    (39.7, 4.865, 4.75),
    (39.7, -7.135, 4.75),
]))
fillet2.Radius = 1

sketch20 = doc.addObject("Sketcher::SketchObject", "Sketch019")
body.addObject(sketch20)
sketch20.AttachmentSupport = (doc.XZ_Plane, [""])
sketch20.MapMode = "FlatFace"
sketch20.AttachmentOffset = App.Placement(V(0, 0, -27.885), App.Rotation())
add_polygon(sketch20, [(-47.75, 1.55), (-47.75, 1.75), (36.85, 1.75), (36.85, 1.55)])
add_polygon(sketch20, [(-46.25, 4.95), (-46.25, 5.15), (35.35, 5.15), (35.35, 4.95)])
sketch20.addConstraint(Sketcher.Constraint("Vertical", 0))
sketch20.addConstraint(Sketcher.Constraint("Horizontal", 1))
sketch20.addConstraint(Sketcher.Constraint("Vertical", 2))
sketch20.addConstraint(Sketcher.Constraint("Horizontal", 3))
sketch20.addConstraint(Sketcher.Constraint("Vertical", 4))
sketch20.addConstraint(Sketcher.Constraint("Horizontal", 5))
sketch20.addConstraint(Sketcher.Constraint("Vertical", 6))
sketch20.addConstraint(Sketcher.Constraint("Horizontal", 7))
sketch20.addConstraint(Sketcher.Constraint("Equal", 2, 4))
sketch20.addConstraint(Sketcher.Constraint("DistanceX", 1, 1, 1, 2, Q("84.6 mm")))
sketch20.addConstraint(Sketcher.Constraint("DistanceX", 5, 1, 5, 2, Q("81.6 mm")))
sketch20.addConstraint(Sketcher.Constraint("DistanceY", 0, 1, 0, 2, Q("0.2 mm")))
sketch20.addConstraint(Sketcher.Constraint("DistanceX", 0, 2, 4, 2, Q("1.5 mm")))
sketch20.addConstraint(Sketcher.Constraint("DistanceY", 0, 2, 4, 2, Q("3.4 mm")))
sketch20.addConstraint(Sketcher.Constraint("DistanceX", 0, 2, -1, 1, Q("47.75 mm")))
sketch20.addConstraint(Sketcher.Constraint("DistanceY", -1, 1, 0, 2, Q("1.75 mm")))
pocket4 = doc.addObject("PartDesign::Pocket", "Pocket003")
body.addObject(pocket4)
pocket4.Profile = sketch20
pocket4.Length = 0.2
pocket4.Reversed = True

sketch21 = doc.addObject("Sketcher::SketchObject", "Sketch020")
body.addObject(sketch21)
sketch21.AttachmentSupport = (doc.XZ_Plane, [""])
sketch21.MapMode = "FlatFace"
sketch21.AttachmentOffset = App.Placement(V(0, 0, 26.685), App.Rotation())
add_polygon(sketch21, [(-46.25, 5.15), (-46.25, 4.95), (35.35, 4.95), (35.35, 5.15)])
sketch21.addConstraint(Sketcher.Constraint("Vertical", 0))
sketch21.addConstraint(Sketcher.Constraint("Horizontal", 1))
sketch21.addConstraint(Sketcher.Constraint("Vertical", 2))
sketch21.addConstraint(Sketcher.Constraint("Horizontal", 3))
sketch21.addConstraint(Sketcher.Constraint("DistanceX", 1, 1, 1, 2, Q("81.6 mm")))
sketch21.addConstraint(Sketcher.Constraint("DistanceY", 0, 2, 0, 1, Q("0.2 mm")))
sketch21.addConstraint(Sketcher.Constraint("DistanceX", 0, 2, -1, 1, Q("46.25 mm")))
sketch21.addConstraint(Sketcher.Constraint("DistanceY", -1, 1, 0, 2, Q("4.95 mm")))
pocket5 = doc.addObject("PartDesign::Pocket", "Pocket004")
body.addObject(pocket5)
pocket5.Profile = sketch21
pocket5.Length = 0.2

sketch22 = doc.addObject("Sketcher::SketchObject", "Sketch021")
body.addObject(sketch22)
sketch22.AttachmentSupport = (doc.XY_Plane, [""])
sketch22.MapMode = "FlatFace"
sketch22.AttachmentOffset = App.Placement(V(0, 0, 13.4), App.Rotation())
sketch22.addGeometry(Part.Circle(V(45.8, -1.1, 0), V(0, 0, 1), 2.8), False)
sketch22.addConstraint(Sketcher.Constraint("Diameter", 0, Q("5.5 mm")))
sketch22.addConstraint(Sketcher.Constraint("DistanceX", -1, 1, 0, 3, Q("45.75 mm")))
sketch22.addConstraint(Sketcher.Constraint("DistanceY", 0, 3, -1, 1, Q("1.135 mm")))
pocket6 = doc.addObject("PartDesign::Pocket", "Pocket005")
body.addObject(pocket6)
pocket6.Profile = sketch22
pocket6.Length = 1

doc.recompute()
